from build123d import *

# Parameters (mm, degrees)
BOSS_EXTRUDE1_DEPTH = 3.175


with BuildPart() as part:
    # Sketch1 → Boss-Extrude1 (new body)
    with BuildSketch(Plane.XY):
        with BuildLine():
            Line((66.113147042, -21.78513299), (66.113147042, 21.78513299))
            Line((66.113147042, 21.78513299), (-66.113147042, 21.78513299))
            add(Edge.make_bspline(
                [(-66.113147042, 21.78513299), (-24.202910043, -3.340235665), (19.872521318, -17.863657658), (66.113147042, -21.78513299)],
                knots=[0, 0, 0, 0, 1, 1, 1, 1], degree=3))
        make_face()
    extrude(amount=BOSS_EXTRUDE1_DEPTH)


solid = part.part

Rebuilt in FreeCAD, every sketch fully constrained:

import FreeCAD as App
import Part
import Sketcher
Q = App.Units.Quantity

doc = App.newDocument("Part")
body = doc.addObject("PartDesign::Body", "Body")

sketch1 = body.newObject("Sketcher::SketchObject", "Sketch")
sketch1.AttachmentSupport = (doc.getObject("XY_Plane"), [""])
sketch1.MapMode = "FlatFace"
sketch1.addGeometry(Part.LineSegment(App.Vector(66.113147, -21.785133, 0), App.Vector(66.113147, 21.785133, 0)), False)
sketch1.addGeometry(Part.LineSegment(App.Vector(66.113147, 21.785133, 0), App.Vector(-66.113147, 21.785133, 0)), False)
sketch1.addGeometry(Part.BSplineCurve([App.Vector(-66.113147, 21.785133, 0), App.Vector(-24.20291, -3.340236, 0), App.Vector(19.872521, -17.863658, 0), App.Vector(66.113147, -21.785133, 0)], [4, 4], [0, 1], False, 3, [1, 1, 1, 1], False), False)
sketch1.addConstraint(Sketcher.Constraint("Block", 2))
sketch1.addConstraint(Sketcher.Constraint("Coincident", 0, 2, 1, 1))
sketch1.addConstraint(Sketcher.Constraint("Coincident", 1, 2, 2, 1))
sketch1.addConstraint(Sketcher.Constraint("Coincident", 2, 2, 0, 1))
sketch1.addConstraint(Sketcher.Constraint("Vertical", 0))
sketch1.addConstraint(Sketcher.Constraint("Horizontal", 1))
pad1 = body.newObject("PartDesign::Pad", "Pad")
pad1.Profile = sketch1
pad1.Length = Q("0.125 in")

doc.recompute()
